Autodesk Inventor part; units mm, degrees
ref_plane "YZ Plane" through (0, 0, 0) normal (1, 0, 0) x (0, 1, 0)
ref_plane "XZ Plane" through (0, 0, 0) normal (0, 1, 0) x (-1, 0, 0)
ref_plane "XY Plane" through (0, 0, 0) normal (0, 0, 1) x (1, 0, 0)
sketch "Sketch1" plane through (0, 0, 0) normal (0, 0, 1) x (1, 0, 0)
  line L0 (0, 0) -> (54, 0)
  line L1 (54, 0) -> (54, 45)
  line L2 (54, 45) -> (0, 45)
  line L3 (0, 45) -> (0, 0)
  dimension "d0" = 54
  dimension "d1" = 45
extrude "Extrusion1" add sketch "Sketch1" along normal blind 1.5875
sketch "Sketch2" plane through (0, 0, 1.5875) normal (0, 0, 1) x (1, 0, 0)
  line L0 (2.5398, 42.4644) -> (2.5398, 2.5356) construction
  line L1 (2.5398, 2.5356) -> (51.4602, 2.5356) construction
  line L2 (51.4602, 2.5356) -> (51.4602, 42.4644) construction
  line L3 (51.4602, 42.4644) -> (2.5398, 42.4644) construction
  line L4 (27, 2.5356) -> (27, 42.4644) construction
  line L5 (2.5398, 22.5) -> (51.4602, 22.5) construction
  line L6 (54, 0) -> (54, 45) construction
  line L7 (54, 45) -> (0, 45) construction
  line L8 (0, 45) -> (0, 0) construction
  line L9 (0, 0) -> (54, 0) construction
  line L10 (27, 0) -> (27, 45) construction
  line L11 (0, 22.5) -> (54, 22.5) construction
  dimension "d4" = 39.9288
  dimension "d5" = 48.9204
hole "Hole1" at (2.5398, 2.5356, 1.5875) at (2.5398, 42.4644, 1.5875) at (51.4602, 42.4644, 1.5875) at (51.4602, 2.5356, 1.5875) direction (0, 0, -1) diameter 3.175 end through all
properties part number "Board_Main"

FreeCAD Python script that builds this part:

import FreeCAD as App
import Part
import Sketcher
from FreeCAD import Vector
Q = App.Units.Quantity


def add_polygon(sketch, points):
    """Adds a closed chain of lines whose ends are joined by coincident constraints."""
    first, n = sketch.GeometryCount, len(points)
    for a, b in zip(points, points[1:] + points[:1]):
        sketch.addGeometry(Part.LineSegment(App.Vector(*a, 0), App.Vector(*b, 0)), False)
    for i in range(n):
        sketch.addConstraint(Sketcher.Constraint("Coincident", first + i, 2, first + (i + 1) % n, 1))

doc = App.newDocument("Part")
body = doc.addObject("PartDesign::Body", "Body")

# Sketch on XY plane
sketch1 = body.newObject("Sketcher::SketchObject", "Sketch")
sketch1.AttachmentSupport = (doc.getObject("XY_Plane"), [""])
sketch1.MapMode = "FlatFace"
add_polygon(sketch1, [(0, 45), (0, 0), (54, 0), (54, 45)])  # lines 0-3
sketch1.addConstraint([
    Sketcher.Constraint("Vertical", 0),
    Sketcher.Constraint("Horizontal", 1),
    Sketcher.Constraint("Vertical", 2),
    Sketcher.Constraint("Horizontal", 3),
    Sketcher.Constraint("Coincident", 0, 2, -1, 1),
    Sketcher.Constraint("DistanceX", 1, 1, 1, 2, Q("54 mm")),
    Sketcher.Constraint("DistanceY", 0, 2, 0, 1, Q("45 mm")),
])
pad1 = body.newObject("PartDesign::Pad", "Pad")
pad1.Profile = sketch1
pad1.Length = 1.5875

# Sketch on XY plane
sketch2 = body.newObject("Sketcher::SketchObject", "Sketch001")
sketch2.AttachmentSupport = (doc.getObject("XY_Plane"), [""])
sketch2.MapMode = "FlatFace"
sketch2.AttachmentOffset = App.Placement(Vector(0, 0, 1.5875), App.Rotation())
sketch2.addGeometry([
    Part.Circle(Vector(2.5398, 2.5356, 0), Vector(0, 0, 1), 1.5875),
    Part.Circle(Vector(2.5398, 42.4644, 0), Vector(0, 0, 1), 1.5875),
    Part.Circle(Vector(51.4602, 42.4644, 0), Vector(0, 0, 1), 1.5875),
    Part.Circle(Vector(51.4602, 2.5356, 0), Vector(0, 0, 1), 1.5875),
], False)
sketch2.addConstraint([
    Sketcher.Constraint("Equal", 0, 1),
    Sketcher.Constraint("Equal", 1, 2),
    Sketcher.Constraint("Equal", 2, 3),
    Sketcher.Constraint("Horizontal", 1, 3, 2, 3),
    Sketcher.Constraint("Horizontal", 0, 3, 3, 3),
    Sketcher.Constraint("Vertical", 0, 3, 1, 3),
    Sketcher.Constraint("Vertical", 2, 3, 3, 3),
    Sketcher.Constraint("Diameter", 0, Q("3.175 mm")),
    Sketcher.Constraint("DistanceX", -1, 1, 0, 3, Q("2.5398 mm")),
    Sketcher.Constraint("DistanceY", -1, 1, 0, 3, Q("2.5356 mm")),
    Sketcher.Constraint("DistanceY", -1, 1, 1, 3, Q("42.4644 mm")),
    Sketcher.Constraint("DistanceX", -1, 1, 2, 3, Q("51.4602 mm")),
])
doc.recompute()
hole = body.newObject("PartDesign::Hole", "Hole")
hole.Profile = sketch2
hole.ThreadType = "None"
hole.Diameter = 3.175
hole.DepthType = "ThroughAll"

doc.recompute()
